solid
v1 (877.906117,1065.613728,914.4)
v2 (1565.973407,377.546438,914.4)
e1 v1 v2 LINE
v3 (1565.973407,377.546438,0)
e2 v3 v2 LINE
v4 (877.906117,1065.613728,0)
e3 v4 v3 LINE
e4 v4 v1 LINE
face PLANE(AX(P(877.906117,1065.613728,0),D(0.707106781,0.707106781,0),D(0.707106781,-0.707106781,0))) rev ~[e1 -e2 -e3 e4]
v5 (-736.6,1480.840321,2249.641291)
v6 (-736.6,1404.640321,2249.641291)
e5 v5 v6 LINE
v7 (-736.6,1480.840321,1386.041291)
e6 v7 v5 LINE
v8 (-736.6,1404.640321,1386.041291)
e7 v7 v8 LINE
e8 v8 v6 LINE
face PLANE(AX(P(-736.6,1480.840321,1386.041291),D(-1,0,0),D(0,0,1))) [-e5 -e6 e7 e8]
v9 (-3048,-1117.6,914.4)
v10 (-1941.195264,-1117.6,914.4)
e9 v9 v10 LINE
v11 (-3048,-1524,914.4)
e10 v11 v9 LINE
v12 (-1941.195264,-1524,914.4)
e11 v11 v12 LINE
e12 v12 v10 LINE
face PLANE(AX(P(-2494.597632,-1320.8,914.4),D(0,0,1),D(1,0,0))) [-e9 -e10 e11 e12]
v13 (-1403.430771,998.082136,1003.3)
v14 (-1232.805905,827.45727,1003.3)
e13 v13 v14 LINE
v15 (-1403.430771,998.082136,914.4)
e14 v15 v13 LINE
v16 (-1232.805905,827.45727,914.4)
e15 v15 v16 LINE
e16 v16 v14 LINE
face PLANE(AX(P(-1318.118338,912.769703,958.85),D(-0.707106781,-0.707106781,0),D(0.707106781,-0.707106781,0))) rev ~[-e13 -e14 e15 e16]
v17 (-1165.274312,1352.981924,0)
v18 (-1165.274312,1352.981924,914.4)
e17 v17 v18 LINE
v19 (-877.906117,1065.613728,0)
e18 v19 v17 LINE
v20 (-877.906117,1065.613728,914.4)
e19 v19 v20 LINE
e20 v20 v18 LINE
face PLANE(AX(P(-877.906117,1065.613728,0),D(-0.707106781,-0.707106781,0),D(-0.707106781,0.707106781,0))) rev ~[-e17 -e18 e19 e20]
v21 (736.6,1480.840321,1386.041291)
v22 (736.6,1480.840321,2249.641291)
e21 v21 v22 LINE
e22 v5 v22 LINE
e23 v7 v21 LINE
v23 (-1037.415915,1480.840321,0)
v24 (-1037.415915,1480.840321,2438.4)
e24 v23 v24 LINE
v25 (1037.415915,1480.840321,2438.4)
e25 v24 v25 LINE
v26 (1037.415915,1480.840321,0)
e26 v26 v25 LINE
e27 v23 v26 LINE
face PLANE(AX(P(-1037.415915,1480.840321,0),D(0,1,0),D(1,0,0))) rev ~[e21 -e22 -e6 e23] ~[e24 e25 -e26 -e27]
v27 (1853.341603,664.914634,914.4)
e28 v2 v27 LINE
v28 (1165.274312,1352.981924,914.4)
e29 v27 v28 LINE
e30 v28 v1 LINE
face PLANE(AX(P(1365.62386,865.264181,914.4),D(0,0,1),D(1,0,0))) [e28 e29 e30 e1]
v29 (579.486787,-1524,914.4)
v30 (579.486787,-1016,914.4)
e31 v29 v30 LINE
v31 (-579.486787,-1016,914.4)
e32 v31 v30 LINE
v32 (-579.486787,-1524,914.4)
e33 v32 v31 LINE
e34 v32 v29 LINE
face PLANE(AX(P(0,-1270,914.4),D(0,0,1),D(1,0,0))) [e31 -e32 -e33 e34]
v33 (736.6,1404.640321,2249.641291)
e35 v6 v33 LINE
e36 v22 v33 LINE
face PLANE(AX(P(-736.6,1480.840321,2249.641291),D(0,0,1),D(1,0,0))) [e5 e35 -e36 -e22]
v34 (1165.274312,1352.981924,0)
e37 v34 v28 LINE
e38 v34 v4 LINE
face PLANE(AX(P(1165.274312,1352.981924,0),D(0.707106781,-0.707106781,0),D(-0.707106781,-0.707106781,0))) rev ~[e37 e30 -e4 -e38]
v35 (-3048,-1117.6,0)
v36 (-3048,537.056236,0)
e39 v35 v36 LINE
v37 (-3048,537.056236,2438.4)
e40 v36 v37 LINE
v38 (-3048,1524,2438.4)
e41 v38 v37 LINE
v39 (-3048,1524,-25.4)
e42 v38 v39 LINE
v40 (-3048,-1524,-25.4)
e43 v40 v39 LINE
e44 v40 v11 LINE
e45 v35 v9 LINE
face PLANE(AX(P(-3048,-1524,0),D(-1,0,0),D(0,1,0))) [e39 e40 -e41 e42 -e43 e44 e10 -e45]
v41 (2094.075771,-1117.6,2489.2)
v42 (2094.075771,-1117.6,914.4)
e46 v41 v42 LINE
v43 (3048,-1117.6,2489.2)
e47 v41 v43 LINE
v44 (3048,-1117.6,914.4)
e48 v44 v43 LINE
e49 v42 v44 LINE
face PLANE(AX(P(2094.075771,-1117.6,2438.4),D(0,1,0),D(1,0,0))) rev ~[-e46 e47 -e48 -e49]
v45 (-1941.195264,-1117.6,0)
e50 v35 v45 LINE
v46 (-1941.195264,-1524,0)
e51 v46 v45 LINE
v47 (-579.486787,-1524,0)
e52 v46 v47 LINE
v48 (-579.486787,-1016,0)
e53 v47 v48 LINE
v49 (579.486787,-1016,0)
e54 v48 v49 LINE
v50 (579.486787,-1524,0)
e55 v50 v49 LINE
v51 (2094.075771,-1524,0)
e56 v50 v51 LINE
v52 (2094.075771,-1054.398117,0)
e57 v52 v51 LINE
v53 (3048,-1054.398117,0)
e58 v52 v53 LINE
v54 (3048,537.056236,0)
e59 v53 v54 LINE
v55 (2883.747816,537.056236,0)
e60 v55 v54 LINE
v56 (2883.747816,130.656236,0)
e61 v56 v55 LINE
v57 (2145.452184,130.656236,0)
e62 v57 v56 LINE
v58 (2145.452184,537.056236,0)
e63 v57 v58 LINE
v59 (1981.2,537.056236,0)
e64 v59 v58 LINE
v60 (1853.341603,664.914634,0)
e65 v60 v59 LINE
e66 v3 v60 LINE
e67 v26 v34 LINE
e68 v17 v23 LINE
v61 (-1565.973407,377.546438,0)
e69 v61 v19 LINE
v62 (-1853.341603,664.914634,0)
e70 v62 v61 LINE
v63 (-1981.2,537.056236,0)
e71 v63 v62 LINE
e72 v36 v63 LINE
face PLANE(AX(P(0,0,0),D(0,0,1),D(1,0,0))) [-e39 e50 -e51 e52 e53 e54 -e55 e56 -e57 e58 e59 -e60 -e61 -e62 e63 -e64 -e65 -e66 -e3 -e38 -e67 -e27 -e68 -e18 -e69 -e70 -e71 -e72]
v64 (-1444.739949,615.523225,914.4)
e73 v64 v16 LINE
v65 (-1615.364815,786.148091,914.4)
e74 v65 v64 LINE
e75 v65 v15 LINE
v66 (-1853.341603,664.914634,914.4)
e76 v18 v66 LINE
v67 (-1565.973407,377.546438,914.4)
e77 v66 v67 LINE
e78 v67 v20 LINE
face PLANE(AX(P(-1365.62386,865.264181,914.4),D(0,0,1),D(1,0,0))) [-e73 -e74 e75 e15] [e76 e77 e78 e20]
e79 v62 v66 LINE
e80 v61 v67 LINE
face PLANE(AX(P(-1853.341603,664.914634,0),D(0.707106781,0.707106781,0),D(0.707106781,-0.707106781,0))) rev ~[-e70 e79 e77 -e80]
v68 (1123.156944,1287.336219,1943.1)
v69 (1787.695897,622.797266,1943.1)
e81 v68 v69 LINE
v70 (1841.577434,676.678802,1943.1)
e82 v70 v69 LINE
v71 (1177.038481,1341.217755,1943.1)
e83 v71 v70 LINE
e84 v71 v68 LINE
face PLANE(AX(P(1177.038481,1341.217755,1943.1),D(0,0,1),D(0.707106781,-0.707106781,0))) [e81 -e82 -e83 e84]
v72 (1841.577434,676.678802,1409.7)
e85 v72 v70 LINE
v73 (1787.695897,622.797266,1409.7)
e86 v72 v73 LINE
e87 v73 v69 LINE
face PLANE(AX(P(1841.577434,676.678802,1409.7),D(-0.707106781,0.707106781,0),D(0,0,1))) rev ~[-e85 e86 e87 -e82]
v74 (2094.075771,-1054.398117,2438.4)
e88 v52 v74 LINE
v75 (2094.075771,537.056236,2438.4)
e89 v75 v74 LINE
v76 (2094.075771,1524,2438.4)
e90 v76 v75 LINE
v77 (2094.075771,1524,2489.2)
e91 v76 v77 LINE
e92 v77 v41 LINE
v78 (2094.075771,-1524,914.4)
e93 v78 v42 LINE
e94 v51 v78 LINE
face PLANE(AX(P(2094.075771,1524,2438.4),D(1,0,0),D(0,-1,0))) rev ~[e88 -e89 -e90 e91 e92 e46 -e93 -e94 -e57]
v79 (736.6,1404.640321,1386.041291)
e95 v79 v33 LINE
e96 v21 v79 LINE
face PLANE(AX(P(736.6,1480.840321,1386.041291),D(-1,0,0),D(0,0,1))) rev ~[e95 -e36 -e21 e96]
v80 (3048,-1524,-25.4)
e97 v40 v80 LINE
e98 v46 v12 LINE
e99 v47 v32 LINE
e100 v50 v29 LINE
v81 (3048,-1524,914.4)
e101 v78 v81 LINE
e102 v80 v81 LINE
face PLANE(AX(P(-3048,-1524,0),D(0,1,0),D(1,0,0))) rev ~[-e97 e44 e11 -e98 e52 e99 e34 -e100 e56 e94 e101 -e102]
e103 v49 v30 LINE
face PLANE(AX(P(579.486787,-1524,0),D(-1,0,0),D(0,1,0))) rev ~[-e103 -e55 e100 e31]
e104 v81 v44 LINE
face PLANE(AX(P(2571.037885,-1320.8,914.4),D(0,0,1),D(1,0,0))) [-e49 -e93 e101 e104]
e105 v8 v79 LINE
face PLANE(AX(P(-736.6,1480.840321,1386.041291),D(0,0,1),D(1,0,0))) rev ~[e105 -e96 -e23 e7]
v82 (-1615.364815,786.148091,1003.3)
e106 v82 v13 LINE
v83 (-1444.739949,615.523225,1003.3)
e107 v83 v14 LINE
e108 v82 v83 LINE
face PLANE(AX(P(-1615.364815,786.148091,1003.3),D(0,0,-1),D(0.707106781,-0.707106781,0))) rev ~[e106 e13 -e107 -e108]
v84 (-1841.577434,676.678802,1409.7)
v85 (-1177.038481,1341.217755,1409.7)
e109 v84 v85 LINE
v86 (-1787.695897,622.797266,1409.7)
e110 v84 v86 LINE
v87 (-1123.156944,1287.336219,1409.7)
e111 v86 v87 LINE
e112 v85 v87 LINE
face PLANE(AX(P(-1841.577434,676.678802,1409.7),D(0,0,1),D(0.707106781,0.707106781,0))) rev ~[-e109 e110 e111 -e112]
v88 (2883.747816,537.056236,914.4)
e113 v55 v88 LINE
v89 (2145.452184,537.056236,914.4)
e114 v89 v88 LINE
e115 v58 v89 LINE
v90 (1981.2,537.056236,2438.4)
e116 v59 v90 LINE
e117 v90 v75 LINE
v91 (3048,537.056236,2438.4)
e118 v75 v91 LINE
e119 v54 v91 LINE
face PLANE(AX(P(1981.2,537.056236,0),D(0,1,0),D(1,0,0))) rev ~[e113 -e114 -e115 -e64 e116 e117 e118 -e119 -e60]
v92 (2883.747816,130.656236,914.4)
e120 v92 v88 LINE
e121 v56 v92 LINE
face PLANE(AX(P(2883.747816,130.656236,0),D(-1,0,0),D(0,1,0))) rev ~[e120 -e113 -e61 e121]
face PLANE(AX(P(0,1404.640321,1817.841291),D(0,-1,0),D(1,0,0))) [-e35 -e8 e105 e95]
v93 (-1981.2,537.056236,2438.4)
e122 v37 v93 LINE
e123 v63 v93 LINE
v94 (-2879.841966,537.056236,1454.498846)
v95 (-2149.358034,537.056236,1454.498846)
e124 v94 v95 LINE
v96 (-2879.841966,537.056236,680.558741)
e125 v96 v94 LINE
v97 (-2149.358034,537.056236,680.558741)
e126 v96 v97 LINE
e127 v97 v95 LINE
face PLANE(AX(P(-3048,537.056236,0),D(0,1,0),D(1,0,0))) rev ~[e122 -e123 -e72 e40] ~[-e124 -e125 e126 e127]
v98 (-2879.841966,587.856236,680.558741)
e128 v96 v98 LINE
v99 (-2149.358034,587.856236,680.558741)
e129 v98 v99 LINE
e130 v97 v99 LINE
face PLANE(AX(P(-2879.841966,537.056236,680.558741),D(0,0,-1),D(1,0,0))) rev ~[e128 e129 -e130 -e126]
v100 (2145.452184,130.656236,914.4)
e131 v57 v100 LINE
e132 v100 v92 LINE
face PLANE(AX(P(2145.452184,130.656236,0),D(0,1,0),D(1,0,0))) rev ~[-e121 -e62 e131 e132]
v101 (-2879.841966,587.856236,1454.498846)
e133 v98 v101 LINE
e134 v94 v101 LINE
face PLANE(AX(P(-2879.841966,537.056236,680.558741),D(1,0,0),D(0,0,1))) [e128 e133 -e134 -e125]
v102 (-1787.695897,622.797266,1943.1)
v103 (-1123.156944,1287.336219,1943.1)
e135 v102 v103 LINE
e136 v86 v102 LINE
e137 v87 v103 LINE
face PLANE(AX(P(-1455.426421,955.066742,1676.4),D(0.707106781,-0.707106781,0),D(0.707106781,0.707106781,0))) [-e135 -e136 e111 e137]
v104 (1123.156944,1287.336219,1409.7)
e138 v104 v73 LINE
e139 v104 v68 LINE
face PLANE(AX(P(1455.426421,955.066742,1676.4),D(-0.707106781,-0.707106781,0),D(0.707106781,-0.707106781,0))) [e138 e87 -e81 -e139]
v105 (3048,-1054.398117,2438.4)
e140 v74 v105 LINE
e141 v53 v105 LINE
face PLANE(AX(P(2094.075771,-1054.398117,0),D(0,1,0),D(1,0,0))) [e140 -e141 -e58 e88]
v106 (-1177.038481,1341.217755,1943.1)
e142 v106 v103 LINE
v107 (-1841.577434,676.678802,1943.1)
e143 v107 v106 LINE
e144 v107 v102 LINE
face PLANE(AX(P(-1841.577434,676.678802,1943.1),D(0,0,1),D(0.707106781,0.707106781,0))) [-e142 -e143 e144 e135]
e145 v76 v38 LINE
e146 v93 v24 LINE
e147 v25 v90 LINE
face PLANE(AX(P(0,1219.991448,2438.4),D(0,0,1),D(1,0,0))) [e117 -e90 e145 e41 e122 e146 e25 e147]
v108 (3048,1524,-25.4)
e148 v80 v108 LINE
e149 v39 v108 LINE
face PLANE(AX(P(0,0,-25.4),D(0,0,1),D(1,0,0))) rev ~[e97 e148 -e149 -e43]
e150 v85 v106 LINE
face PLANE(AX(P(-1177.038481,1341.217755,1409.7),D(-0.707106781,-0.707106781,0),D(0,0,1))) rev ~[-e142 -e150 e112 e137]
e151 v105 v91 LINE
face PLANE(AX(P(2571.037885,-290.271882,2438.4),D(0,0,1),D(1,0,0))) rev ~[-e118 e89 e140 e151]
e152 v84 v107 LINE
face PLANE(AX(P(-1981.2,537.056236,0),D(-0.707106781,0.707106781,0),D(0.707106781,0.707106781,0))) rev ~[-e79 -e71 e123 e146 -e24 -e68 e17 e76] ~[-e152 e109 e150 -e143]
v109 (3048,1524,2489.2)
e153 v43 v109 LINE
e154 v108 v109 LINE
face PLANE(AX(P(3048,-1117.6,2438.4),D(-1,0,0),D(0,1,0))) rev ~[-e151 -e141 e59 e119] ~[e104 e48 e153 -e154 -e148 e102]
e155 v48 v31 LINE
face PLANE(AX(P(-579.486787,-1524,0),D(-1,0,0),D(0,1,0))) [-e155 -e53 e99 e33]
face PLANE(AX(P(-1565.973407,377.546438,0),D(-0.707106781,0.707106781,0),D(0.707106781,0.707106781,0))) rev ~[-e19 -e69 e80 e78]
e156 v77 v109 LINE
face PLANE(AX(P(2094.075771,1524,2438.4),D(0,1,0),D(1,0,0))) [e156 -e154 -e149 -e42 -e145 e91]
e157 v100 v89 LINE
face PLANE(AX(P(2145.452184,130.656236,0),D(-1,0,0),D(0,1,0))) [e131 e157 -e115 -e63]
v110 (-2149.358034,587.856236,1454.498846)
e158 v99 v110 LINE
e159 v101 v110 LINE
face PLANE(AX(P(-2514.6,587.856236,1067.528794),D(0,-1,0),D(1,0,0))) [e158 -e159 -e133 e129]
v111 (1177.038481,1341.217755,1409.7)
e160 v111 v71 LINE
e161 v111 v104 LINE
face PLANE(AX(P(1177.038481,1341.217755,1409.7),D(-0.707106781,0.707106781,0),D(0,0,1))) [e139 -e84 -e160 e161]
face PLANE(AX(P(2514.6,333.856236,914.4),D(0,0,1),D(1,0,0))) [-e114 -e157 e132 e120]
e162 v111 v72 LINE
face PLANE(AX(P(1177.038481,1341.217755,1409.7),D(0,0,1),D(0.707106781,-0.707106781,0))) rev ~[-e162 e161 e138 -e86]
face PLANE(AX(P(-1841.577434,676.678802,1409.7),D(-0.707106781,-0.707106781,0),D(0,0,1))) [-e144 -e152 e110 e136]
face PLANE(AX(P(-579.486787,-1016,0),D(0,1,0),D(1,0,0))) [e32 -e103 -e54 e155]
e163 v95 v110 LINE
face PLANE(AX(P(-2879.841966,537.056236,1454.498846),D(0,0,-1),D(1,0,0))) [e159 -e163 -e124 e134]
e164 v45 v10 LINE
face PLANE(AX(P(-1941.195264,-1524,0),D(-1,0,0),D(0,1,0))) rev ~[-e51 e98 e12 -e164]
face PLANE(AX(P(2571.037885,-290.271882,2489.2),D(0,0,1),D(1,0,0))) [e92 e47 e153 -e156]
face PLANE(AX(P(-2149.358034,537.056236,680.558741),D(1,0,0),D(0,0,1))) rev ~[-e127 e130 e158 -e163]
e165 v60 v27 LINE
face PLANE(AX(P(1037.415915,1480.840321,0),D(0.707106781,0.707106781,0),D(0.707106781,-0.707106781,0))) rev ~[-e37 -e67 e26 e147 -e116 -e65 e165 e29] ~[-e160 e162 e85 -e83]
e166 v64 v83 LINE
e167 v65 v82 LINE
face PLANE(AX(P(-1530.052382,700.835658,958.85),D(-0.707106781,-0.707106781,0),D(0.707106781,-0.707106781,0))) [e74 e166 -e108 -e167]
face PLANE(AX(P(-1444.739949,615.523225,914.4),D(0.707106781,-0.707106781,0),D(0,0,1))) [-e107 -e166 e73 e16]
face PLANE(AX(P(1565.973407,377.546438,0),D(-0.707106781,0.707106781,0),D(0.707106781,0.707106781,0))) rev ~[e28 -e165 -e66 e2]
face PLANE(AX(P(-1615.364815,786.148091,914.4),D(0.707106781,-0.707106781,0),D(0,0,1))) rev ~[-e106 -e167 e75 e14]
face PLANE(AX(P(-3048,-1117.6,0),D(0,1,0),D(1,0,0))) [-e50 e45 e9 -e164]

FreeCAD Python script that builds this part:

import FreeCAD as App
import Part
import Sketcher
Q = App.Units.Quantity

doc = App.newDocument("Part")
params = doc.addObject("Spreadsheet::Sheet", "Params")
for row, (alias, value) in enumerate([
    ("sketch1_width", "240 in"),
    ("sketch1_width2", "42 in"),
    ("pad1_length", "96 in"),
    ("sketch2_height", "16 in"),
    ("sketch2_length", "16 in"),
    ("pad2_length", "36 in"),
    ("pad3_length", "96 in"),
    ("sketch4_height", "16 in"),
    ("pad4_length", "36 in"),
    ("sketch5_height", "20 in"),
    ("pad5_length", "36 in"),
    ("sketch6_width", "240 in"),
    ("sketch6_height", "120 in"),
    ("pad6_length", "1 in"),
    ("sketch7_height", "104 in"),
    ("pad7_length", "2 in"),
    ("sketch8_width", "58 in"),
    ("sketch8_height", "34 in"),
    ("pad8_length", "3 in"),
    ("sketch9_width", "37 in"),
    ("sketch9_height", "21 in"),
    ("pad9_length", "3 in"),
    ("sketch10_width", "37 in"),
    ("sketch10_height", "21 in"),
    ("pad10_length", "3 in"),
    ("pocket1_length", "2 in"),
    ("sketch12_width", "9.5 in"),
    ("sketch12_height", "3.5 in"),
    ("pad11_length", "11.8 in"),
    ("sketch13_height", "16 in"),
    ("pad12_length", "36 in"),
], start=1):
    params.set(f"A{row}", alias)
    params.set(f"B{row}", "=" + value)
    params.setAlias(f"B{row}", alias)

body = doc.addObject("PartDesign::Body", "Body")

# Sketch on XY plane
sketch1 = body.newObject("Sketcher::SketchObject", "Sketch")
sketch1.AttachmentSupport = (doc.getObject("XY_Plane"), [""])
sketch1.MapMode = "FlatFace"
sketch1.addGeometry(Part.LineSegment(App.Vector(3048, 537, 0), App.Vector(3048, 1524, 0)), False)
sketch1.addGeometry(Part.LineSegment(App.Vector(3048, 1524, 0), App.Vector(-3048, 1524, 0)), False)
sketch1.addGeometry(Part.LineSegment(App.Vector(-3048, 1524, 0), App.Vector(-3048, 537, 0)), False)
sketch1.addGeometry(Part.LineSegment(App.Vector(-3048, 537, 0), App.Vector(-1981, 537, 0)), False)
sketch1.addGeometry(Part.LineSegment(App.Vector(-1981, 537, 0), App.Vector(-1037, 1481, 0)), False)
sketch1.addGeometry(Part.LineSegment(App.Vector(-1037, 1481, 0), App.Vector(1037, 1481, 0)), False)
sketch1.addGeometry(Part.LineSegment(App.Vector(1037, 1481, 0), App.Vector(1981, 537, 0)), False)
sketch1.addGeometry(Part.LineSegment(App.Vector(1981, 537, 0), App.Vector(3048, 537, 0)), False)
sketch1.addConstraint(Sketcher.Constraint("Coincident", 0, 2, 1, 1))
sketch1.addConstraint(Sketcher.Constraint("Coincident", 1, 2, 2, 1))
sketch1.addConstraint(Sketcher.Constraint("Coincident", 2, 2, 3, 1))
sketch1.addConstraint(Sketcher.Constraint("Coincident", 3, 2, 4, 1))
sketch1.addConstraint(Sketcher.Constraint("Coincident", 4, 2, 5, 1))
sketch1.addConstraint(Sketcher.Constraint("Coincident", 5, 2, 6, 1))
sketch1.addConstraint(Sketcher.Constraint("Coincident", 6, 2, 7, 1))
sketch1.addConstraint(Sketcher.Constraint("Coincident", 7, 2, 0, 1))
sketch1.addConstraint(Sketcher.Constraint("Vertical", 0))
sketch1.addConstraint(Sketcher.Constraint("Horizontal", 1))
sketch1.addConstraint(Sketcher.Constraint("Vertical", 2))
sketch1.addConstraint(Sketcher.Constraint("Horizontal", 3))
sketch1.addConstraint(Sketcher.Constraint("Horizontal", 5))
sketch1.addConstraint(Sketcher.Constraint("Horizontal", 7))
sketch1.addConstraint(Sketcher.Constraint("Symmetric", 3, 2, 6, 2, -2))
sketch1.addConstraint(Sketcher.Constraint("Perpendicular", 4, 6))
sketch1.addConstraint(Sketcher.Constraint("Equal", 3, 7))
sketch1.addConstraint(Sketcher.Constraint("Equal", 4, 6))
sketch1.addConstraint(Sketcher.Constraint("DistanceX", 1, 2, 1, 1, Q("240 in")))
sketch1.addConstraint(Sketcher.Constraint("DistanceX", 3, 1, 3, 2, Q("42 in")))
sketch1.addConstraint(Sketcher.Constraint("DistanceY", -1, 1, 0, 2, Q("60 in")))
sketch1.addConstraint(Sketcher.Constraint("DistanceY", -1, 1, 4, 2, Q("58.3008001 in")))
sketch1.addConstraint(Sketcher.Constraint("DistanceX", 5, 1, 5, 2, Q("2074.83183 mm")))
sketch1.setExpression("Constraints[18]", "Params.sketch1_width")
sketch1.setExpression("Constraints[19]", "Params.sketch1_width2")
pad1 = body.newObject("PartDesign::Pad", "Pad")
pad1.Profile = sketch1
pad1.setExpression("Length", "Params.pad1_length")

# Sketch on XY plane
sketch2 = body.newObject("Sketcher::SketchObject", "Sketch001")
sketch2.AttachmentSupport = (doc.getObject("XY_Plane"), [""])
sketch2.MapMode = "FlatFace"
sketch2.addGeometry(Part.LineSegment(App.Vector(-1165, 1353, 0), App.Vector(-1853, 665, 0)), False)
sketch2.addGeometry(Part.LineSegment(App.Vector(-1853, 665, 0), App.Vector(-1566, 378, 0)), False)
sketch2.addGeometry(Part.LineSegment(App.Vector(-1566, 378, 0), App.Vector(-878, 1066, 0)), False)
sketch2.addGeometry(Part.LineSegment(App.Vector(-878, 1066, 0), App.Vector(-1165, 1353, 0)), False)
sketch2.addGeometry(Part.LineSegment(App.Vector(1566, 378, 0), App.Vector(1853, 665, 0)), False)
sketch2.addGeometry(Part.LineSegment(App.Vector(1853, 665, 0), App.Vector(1165, 1353, 0)), False)
sketch2.addGeometry(Part.LineSegment(App.Vector(1165, 1353, 0), App.Vector(878, 1066, 0)), False)
sketch2.addGeometry(Part.LineSegment(App.Vector(878, 1066, 0), App.Vector(1566, 378, 0)), False)
sketch2.addGeometry(Part.LineSegment(App.Vector(2145, 537, 0), App.Vector(2145, 131, 0)), False)
sketch2.addGeometry(Part.LineSegment(App.Vector(2145, 131, 0), App.Vector(2884, 131, 0)), False)
sketch2.addGeometry(Part.LineSegment(App.Vector(2884, 131, 0), App.Vector(2884, 537, 0)), False)
sketch2.addGeometry(Part.LineSegment(App.Vector(2884, 537, 0), App.Vector(2145, 537, 0)), False)
sketch2.addConstraint(Sketcher.Constraint("Coincident", 0, 2, 1, 1))
sketch2.addConstraint(Sketcher.Constraint("Coincident", 1, 2, 2, 1))
sketch2.addConstraint(Sketcher.Constraint("Coincident", 2, 2, 3, 1))
sketch2.addConstraint(Sketcher.Constraint("Coincident", 3, 2, 0, 1))
sketch2.addConstraint(Sketcher.Constraint("Coincident", 4, 2, 5, 1))
sketch2.addConstraint(Sketcher.Constraint("Coincident", 5, 2, 6, 1))
sketch2.addConstraint(Sketcher.Constraint("Coincident", 6, 2, 7, 1))
sketch2.addConstraint(Sketcher.Constraint("Coincident", 7, 2, 4, 1))
sketch2.addConstraint(Sketcher.Constraint("Coincident", 8, 2, 9, 1))
sketch2.addConstraint(Sketcher.Constraint("Coincident", 9, 2, 10, 1))
sketch2.addConstraint(Sketcher.Constraint("Coincident", 10, 2, 11, 1))
sketch2.addConstraint(Sketcher.Constraint("Coincident", 11, 2, 8, 1))
sketch2.addConstraint(Sketcher.Constraint("Vertical", 8))
sketch2.addConstraint(Sketcher.Constraint("Horizontal", 9))
sketch2.addConstraint(Sketcher.Constraint("Vertical", 10))
sketch2.addConstraint(Sketcher.Constraint("Horizontal", 11))
sketch2.addConstraint(Sketcher.Constraint("Symmetric", 0, 2, 4, 2, -2))
sketch2.addConstraint(Sketcher.Constraint("Symmetric", 3, 2, 5, 2, -2))
sketch2.addConstraint(Sketcher.Constraint("Symmetric", 2, 2, 6, 2, -2))
sketch2.addConstraint(Sketcher.Constraint("Symmetric", 1, 2, 7, 2, -2))
sketch2.addConstraint(Sketcher.Constraint("Perpendicular", 0, 1))
sketch2.addConstraint(Sketcher.Constraint("Perpendicular", 1, 2))
sketch2.addConstraint(Sketcher.Constraint("Perpendicular", 2, 3))
sketch2.addConstraint(Sketcher.Constraint("Perpendicular", 3, 4))
sketch2.addConstraint(Sketcher.Constraint("DistanceY", 8, 2, 8, 1, Q("16 in")))
sketch2.addConstraint(Sketcher.Constraint("Distance", 1, Q("16 in")))
sketch2.addConstraint(Sketcher.Constraint("DistanceY", 8, 2, 7, 2, Q("246.890202 mm")))
sketch2.addConstraint(Sketcher.Constraint("DistanceX", 2, 2, 8, 2, Q("3023.358301 mm")))
sketch2.addConstraint(Sketcher.Constraint("DistanceX", 6, 2, 9, 2, Q("2005.841699 mm")))
sketch2.addConstraint(Sketcher.Constraint("DistanceX", 9, 1, 9, 2, Q("738.295632 mm")))
sketch2.addConstraint(Sketcher.Constraint("DistanceX", 1, 2, 2, 2, Q("688.06729 mm")))
sketch2.addConstraint(Sketcher.Constraint("DistanceY", -1, 1, 0, 2, Q("664.914634 mm")))
sketch2.setExpression("Constraints[24]", "Params.sketch2_height")
sketch2.setExpression("Constraints[25]", "Params.sketch2_length")
pad2 = body.newObject("PartDesign::Pad", "Pad001")
pad2.Profile = sketch2
pad2.setExpression("Length", "Params.pad2_length")
body2 = doc.addObject("PartDesign::Body", "Body001")

# Sketch on XY plane
sketch3 = body2.newObject("Sketcher::SketchObject", "Sketch002")
sketch3.AttachmentSupport = (doc.getObject("XY_Plane001"), [""])
sketch3.MapMode = "FlatFace"
sketch3.addGeometry(Part.LineSegment(App.Vector(2094, -1054, 0), App.Vector(2094, -1118, 0)), False)
sketch3.addGeometry(Part.LineSegment(App.Vector(2094, -1118, 0), App.Vector(3048, -1118, 0)), False)
sketch3.addGeometry(Part.LineSegment(App.Vector(3048, -1118, 0), App.Vector(3048, -1054, 0)), False)
sketch3.addGeometry(Part.LineSegment(App.Vector(3048, -1054, 0), App.Vector(2094, -1054, 0)), False)
sketch3.addConstraint(Sketcher.Constraint("Coincident", 0, 2, 1, 1))
sketch3.addConstraint(Sketcher.Constraint("Coincident", 1, 2, 2, 1))
sketch3.addConstraint(Sketcher.Constraint("Coincident", 2, 2, 3, 1))
sketch3.addConstraint(Sketcher.Constraint("Coincident", 3, 2, 0, 1))
sketch3.addConstraint(Sketcher.Constraint("Vertical", 0))
sketch3.addConstraint(Sketcher.Constraint("Horizontal", 1))
sketch3.addConstraint(Sketcher.Constraint("Vertical", 2))
sketch3.addConstraint(Sketcher.Constraint("Horizontal", 3))
sketch3.addConstraint(Sketcher.Constraint("DistanceY", 0, 2, -1, 1, Q("44 in")))
sketch3.addConstraint(Sketcher.Constraint("DistanceX", -1, 1, 1, 2, Q("120 in")))
sketch3.addConstraint(Sketcher.Constraint("DistanceX", 1, 1, 1, 2, Q("953.924229 mm")))
sketch3.addConstraint(Sketcher.Constraint("DistanceY", 0, 2, 0, 1, Q("63.201883 mm")))
pad3 = body2.newObject("PartDesign::Pad", "Pad002")
pad3.Profile = sketch3
pad3.setExpression("Length", "Params.pad3_length")

# Sketch on XY plane
sketch4 = body2.newObject("Sketcher::SketchObject", "Sketch003")
sketch4.AttachmentSupport = (doc.getObject("XY_Plane001"), [""])
sketch4.MapMode = "FlatFace"
sketch4.addGeometry(Part.LineSegment(App.Vector(2094, -1118, 0), App.Vector(2094, -1524, 0)), False)
sketch4.addGeometry(Part.LineSegment(App.Vector(2094, -1524, 0), App.Vector(3048, -1524, 0)), False)
sketch4.addGeometry(Part.LineSegment(App.Vector(3048, -1524, 0), App.Vector(3048, -1118, 0)), False)
sketch4.addGeometry(Part.LineSegment(App.Vector(3048, -1118, 0), App.Vector(2094, -1118, 0)), False)
sketch4.addConstraint(Sketcher.Constraint("Coincident", 0, 2, 1, 1))
sketch4.addConstraint(Sketcher.Constraint("Coincident", 1, 2, 2, 1))
sketch4.addConstraint(Sketcher.Constraint("Coincident", 2, 2, 3, 1))
sketch4.addConstraint(Sketcher.Constraint("Coincident", 3, 2, 0, 1))
sketch4.addConstraint(Sketcher.Constraint("Vertical", 0))
sketch4.addConstraint(Sketcher.Constraint("Horizontal", 1))
sketch4.addConstraint(Sketcher.Constraint("Vertical", 2))
sketch4.addConstraint(Sketcher.Constraint("Horizontal", 3))
sketch4.addConstraint(Sketcher.Constraint("DistanceY", 0, 2, 0, 1, Q("16 in")))
sketch4.addConstraint(Sketcher.Constraint("DistanceY", 0, 2, -1, 1, Q("60 in")))
sketch4.addConstraint(Sketcher.Constraint("DistanceX", -1, 1, 1, 2, Q("120 in")))
sketch4.addConstraint(Sketcher.Constraint("DistanceX", 1, 1, 1, 2, Q("953.924229 mm")))
sketch4.setExpression("Constraints[8]", "Params.sketch4_height")
pad4 = body2.newObject("PartDesign::Pad", "Pad003")
pad4.Profile = sketch4
pad4.setExpression("Length", "Params.pad4_length")
body3 = doc.addObject("PartDesign::Body", "Body002")

# Sketch on XY plane
sketch5 = body3.newObject("Sketcher::SketchObject", "Sketch004")
sketch5.AttachmentSupport = (doc.getObject("XY_Plane002"), [""])
sketch5.MapMode = "FlatFace"
sketch5.addGeometry(Part.LineSegment(App.Vector(-579, -1016, 0), App.Vector(-579, -1524, 0)), False)
sketch5.addGeometry(Part.LineSegment(App.Vector(-579, -1524, 0), App.Vector(579, -1524, 0)), False)
sketch5.addGeometry(Part.LineSegment(App.Vector(579, -1524, 0), App.Vector(579, -1016, 0)), False)
sketch5.addGeometry(Part.LineSegment(App.Vector(579, -1016, 0), App.Vector(-579, -1016, 0)), False)
sketch5.addConstraint(Sketcher.Constraint("Coincident", 0, 2, 1, 1))
sketch5.addConstraint(Sketcher.Constraint("Coincident", 1, 2, 2, 1))
sketch5.addConstraint(Sketcher.Constraint("Coincident", 2, 2, 3, 1))
sketch5.addConstraint(Sketcher.Constraint("Coincident", 3, 2, 0, 1))
sketch5.addConstraint(Sketcher.Constraint("Vertical", 0))
sketch5.addConstraint(Sketcher.Constraint("Horizontal", 1))
sketch5.addConstraint(Sketcher.Constraint("Vertical", 2))
sketch5.addConstraint(Sketcher.Constraint("Horizontal", 3))
sketch5.addConstraint(Sketcher.Constraint("DistanceY", 0, 2, 0, 1, Q("20 in")))
sketch5.addConstraint(Sketcher.Constraint("DistanceY", 0, 2, -1, 1, Q("60 in")))
sketch5.addConstraint(Sketcher.Constraint("DistanceX", 1, 1, 1, 2, Q("1158.973575 mm")))
sketch5.addConstraint(Sketcher.Constraint("DistanceX", 0, 2, -1, 1, Q("579.486787 mm")))
sketch5.setExpression("Constraints[8]", "Params.sketch5_height")
pad5 = body3.newObject("PartDesign::Pad", "Pad004")
pad5.Profile = sketch5
pad5.setExpression("Length", "Params.pad5_length")
body.AllowCompound = True
doc.recompute()

boolean = body.newObject("PartDesign::Boolean", "Boolean")
boolean.Type = "Fuse"
boolean.addObjects([body2])
doc.recompute()

boolean2 = body.newObject("PartDesign::Boolean", "Boolean001")
boolean2.Type = "Fuse"
boolean2.addObjects([body3])

# Sketch on XY plane
sketch6 = body.newObject("Sketcher::SketchObject", "Sketch005")
sketch6.AttachmentSupport = (doc.getObject("XY_Plane"), [""])
sketch6.MapMode = "FlatFace"
sketch6.addGeometry(Part.LineSegment(App.Vector(-3048, 1524, 0), App.Vector(-3048, -1524, 0)), False)
sketch6.addGeometry(Part.LineSegment(App.Vector(-3048, -1524, 0), App.Vector(3048, -1524, 0)), False)
sketch6.addGeometry(Part.LineSegment(App.Vector(3048, -1524, 0), App.Vector(3048, 1524, 0)), False)
sketch6.addGeometry(Part.LineSegment(App.Vector(3048, 1524, 0), App.Vector(-3048, 1524, 0)), False)
sketch6.addConstraint(Sketcher.Constraint("Coincident", 0, 2, 1, 1))
sketch6.addConstraint(Sketcher.Constraint("Coincident", 1, 2, 2, 1))
sketch6.addConstraint(Sketcher.Constraint("Coincident", 2, 2, 3, 1))
sketch6.addConstraint(Sketcher.Constraint("Coincident", 3, 2, 0, 1))
sketch6.addConstraint(Sketcher.Constraint("Vertical", 0))
sketch6.addConstraint(Sketcher.Constraint("Horizontal", 1))
sketch6.addConstraint(Sketcher.Constraint("Vertical", 2))
sketch6.addConstraint(Sketcher.Constraint("Horizontal", 3))
sketch6.addConstraint(Sketcher.Constraint("Symmetric", 0, 2, 2, 2, -1, 1))
sketch6.addConstraint(Sketcher.Constraint("DistanceX", 1, 1, 1, 2, Q("240 in")))
sketch6.addConstraint(Sketcher.Constraint("DistanceY", 0, 2, 0, 1, Q("120 in")))
sketch6.setExpression("Constraints[9]", "Params.sketch6_width")
sketch6.setExpression("Constraints[10]", "Params.sketch6_height")
pad6 = body.newObject("PartDesign::Pad", "Pad005")
pad6.Profile = sketch6
pad6.setExpression("Length", "Params.pad6_length")
pad6.Reversed = True

# Sketch on XY plane
sketch7 = body.newObject("Sketcher::SketchObject", "Sketch006")
sketch7.AttachmentSupport = (doc.getObject("XY_Plane"), [""])
sketch7.MapMode = "FlatFace"
sketch7.AttachmentOffset = App.Placement(App.Vector(0, 0, 96 * 25.4), App.Rotation())
sketch7.addGeometry(Part.LineSegment(App.Vector(2094, -1118, 0), App.Vector(3048, -1118, 0)), False)
sketch7.addGeometry(Part.LineSegment(App.Vector(3048, -1118, 0), App.Vector(3048, 1524, 0)), False)
sketch7.addGeometry(Part.LineSegment(App.Vector(3048, 1524, 0), App.Vector(2094, 1524, 0)), False)
sketch7.addGeometry(Part.LineSegment(App.Vector(2094, 1524, 0), App.Vector(2094, -1118, 0)), False)
sketch7.addConstraint(Sketcher.Constraint("Coincident", 0, 2, 1, 1))
sketch7.addConstraint(Sketcher.Constraint("Coincident", 1, 2, 2, 1))
sketch7.addConstraint(Sketcher.Constraint("Coincident", 2, 2, 3, 1))
sketch7.addConstraint(Sketcher.Constraint("Coincident", 3, 2, 0, 1))
sketch7.addConstraint(Sketcher.Constraint("Horizontal", 0))
sketch7.addConstraint(Sketcher.Constraint("Vertical", 1))
sketch7.addConstraint(Sketcher.Constraint("Horizontal", 2))
sketch7.addConstraint(Sketcher.Constraint("Vertical", 3))
sketch7.addConstraint(Sketcher.Constraint("DistanceY", 1, 1, 1, 2, Q("104 in")))
sketch7.addConstraint(Sketcher.Constraint("DistanceX", -1, 1, 0, 2, Q("120 in")))
sketch7.addConstraint(Sketcher.Constraint("DistanceY", 0, 2, -1, 1, Q("44 in")))
sketch7.addConstraint(Sketcher.Constraint("DistanceX", 0, 1, 0, 2, Q("953.924229 mm")))
sketch7.setExpression("Constraints[8]", "Params.sketch7_height")
pad7 = body.newObject("PartDesign::Pad", "Pad006")
pad7.Profile = sketch7
pad7.setExpression("Length", "Params.pad7_length")

# Sketch on XZ plane
sketch8 = body.newObject("Sketcher::SketchObject", "Sketch007")
sketch8.AttachmentSupport = (doc.getObject("XZ_Plane"), [""])
sketch8.MapMode = "FlatFace"
sketch8.AttachmentOffset = App.Placement(App.Vector(0, 0, -58.3008001 * 25.4), App.Rotation())
sketch8.addGeometry(Part.LineSegment(App.Vector(-737, 2250, 0), App.Vector(-737, 1386, 0)), False)
sketch8.addGeometry(Part.LineSegment(App.Vector(-737, 1386, 0), App.Vector(737, 1386, 0)), False)
sketch8.addGeometry(Part.LineSegment(App.Vector(737, 1386, 0), App.Vector(737, 2250, 0)), False)
sketch8.addGeometry(Part.LineSegment(App.Vector(737, 2250, 0), App.Vector(-737, 2250, 0)), False)
sketch8.addConstraint(Sketcher.Constraint("Coincident", 0, 2, 1, 1))
sketch8.addConstraint(Sketcher.Constraint("Coincident", 1, 2, 2, 1))
sketch8.addConstraint(Sketcher.Constraint("Coincident", 2, 2, 3, 1))
sketch8.addConstraint(Sketcher.Constraint("Coincident", 3, 2, 0, 1))
sketch8.addConstraint(Sketcher.Constraint("Vertical", 0))
sketch8.addConstraint(Sketcher.Constraint("Horizontal", 1))
sketch8.addConstraint(Sketcher.Constraint("Vertical", 2))
sketch8.addConstraint(Sketcher.Constraint("Horizontal", 3))
sketch8.addConstraint(Sketcher.Constraint("DistanceX", 1, 1, 1, 2, Q("58 in")))
sketch8.addConstraint(Sketcher.Constraint("DistanceY", 0, 2, 0, 1, Q("34 in")))
sketch8.addConstraint(Sketcher.Constraint("DistanceX", 0, 2, -1, 1, Q("29 in")))
sketch8.addConstraint(Sketcher.Constraint("DistanceY", -1, 1, 0, 2, Q("1386.041291 mm")))
sketch8.setExpression("Constraints[8]", "Params.sketch8_width")
sketch8.setExpression("Constraints[9]", "Params.sketch8_height")
pad8 = body.newObject("PartDesign::Pad", "Pad007")
pad8.Profile = sketch8
pad8.setExpression("Length", "Params.pad8_length")

# Sketch on an angled plane
sketch9 = body.newObject("Sketcher::SketchObject", "Sketch008")
sketch9.Placement = App.Placement(App.Vector(-1259.128118, 1259.128118, 0), App.Rotation(App.Vector(0.707106781, 0.707106781, 0), App.Vector(0, 0, 0.999999999), App.Vector(0.707106781, -0.707106781, 0), "ZXY"))
sketch9.addGeometry(Part.LineSegment(App.Vector(-824, 1943, 0), App.Vector(-824, 1410, 0)), False)
sketch9.addGeometry(Part.LineSegment(App.Vector(-824, 1410, 0), App.Vector(116, 1410, 0)), False)
sketch9.addGeometry(Part.LineSegment(App.Vector(116, 1410, 0), App.Vector(116, 1943, 0)), False)
sketch9.addGeometry(Part.LineSegment(App.Vector(116, 1943, 0), App.Vector(-824, 1943, 0)), False)
sketch9.addConstraint(Sketcher.Constraint("Coincident", 0, 2, 1, 1))
sketch9.addConstraint(Sketcher.Constraint("Coincident", 1, 2, 2, 1))
sketch9.addConstraint(Sketcher.Constraint("Coincident", 2, 2, 3, 1))
sketch9.addConstraint(Sketcher.Constraint("Coincident", 3, 2, 0, 1))
sketch9.addConstraint(Sketcher.Constraint("Vertical", 0))
sketch9.addConstraint(Sketcher.Constraint("Horizontal", 1))
sketch9.addConstraint(Sketcher.Constraint("Vertical", 2))
sketch9.addConstraint(Sketcher.Constraint("Horizontal", 3))
sketch9.addConstraint(Sketcher.Constraint("DistanceX", 1, 1, 1, 2, Q("37 in")))
sketch9.addConstraint(Sketcher.Constraint("DistanceY", 0, 2, 0, 1, Q("21 in")))
sketch9.addConstraint(Sketcher.Constraint("DistanceY", -1, 1, 0, 2, Q("55.4999999 in")))
sketch9.addConstraint(Sketcher.Constraint("DistanceX", 0, 2, -1, 1, Q("823.707721 mm")))
sketch9.setExpression("Constraints[8]", "Params.sketch9_width")
sketch9.setExpression("Constraints[9]", "Params.sketch9_height")
pad9 = body.newObject("PartDesign::Pad", "Pad008")
pad9.Profile = sketch9
pad9.setExpression("Length", "Params.pad9_length")

# Sketch on an angled plane
sketch10 = body.newObject("Sketcher::SketchObject", "Sketch009")
sketch10.Placement = App.Placement(App.Vector(1259.128118, 1259.128118, 0), App.Rotation(App.Vector(0.707106781, -0.707106781, 0), App.Vector(0, 0, 0.999999999), App.Vector(-0.707106781, -0.707106781, 0), "ZXY"))
sketch10.addGeometry(Part.LineSegment(App.Vector(-116, 1943, 0), App.Vector(-116, 1410, 0)), False)
sketch10.addGeometry(Part.LineSegment(App.Vector(-116, 1410, 0), App.Vector(824, 1410, 0)), False)
sketch10.addGeometry(Part.LineSegment(App.Vector(824, 1410, 0), App.Vector(824, 1943, 0)), False)
sketch10.addGeometry(Part.LineSegment(App.Vector(824, 1943, 0), App.Vector(-116, 1943, 0)), False)
sketch10.addConstraint(Sketcher.Constraint("Coincident", 0, 2, 1, 1))
sketch10.addConstraint(Sketcher.Constraint("Coincident", 1, 2, 2, 1))
sketch10.addConstraint(Sketcher.Constraint("Coincident", 2, 2, 3, 1))
sketch10.addConstraint(Sketcher.Constraint("Coincident", 3, 2, 0, 1))
sketch10.addConstraint(Sketcher.Constraint("Vertical", 0))
sketch10.addConstraint(Sketcher.Constraint("Horizontal", 1))
sketch10.addConstraint(Sketcher.Constraint("Vertical", 2))
sketch10.addConstraint(Sketcher.Constraint("Horizontal", 3))
sketch10.addConstraint(Sketcher.Constraint("DistanceX", 1, 1, 1, 2, Q("37 in")))
sketch10.addConstraint(Sketcher.Constraint("DistanceY", 0, 2, 0, 1, Q("21 in")))
sketch10.addConstraint(Sketcher.Constraint("DistanceY", -1, 1, 0, 2, Q("55.4999999 in")))
sketch10.addConstraint(Sketcher.Constraint("DistanceX", 0, 2, -1, 1, Q("116.092278 mm")))
sketch10.setExpression("Constraints[8]", "Params.sketch10_width")
sketch10.setExpression("Constraints[9]", "Params.sketch10_height")
pad10 = body.newObject("PartDesign::Pad", "Pad009")
pad10.Profile = sketch10
pad10.setExpression("Length", "Params.pad10_length")

# Sketch on XZ plane
sketch11 = body.newObject("Sketcher::SketchObject", "Sketch010")
sketch11.AttachmentSupport = (doc.getObject("XZ_Plane"), [""])
sketch11.MapMode = "FlatFace"
sketch11.AttachmentOffset = App.Placement(App.Vector(0, 0, -537.056236), App.Rotation())
sketch11.addGeometry(Part.LineSegment(App.Vector(-2880, 1454, 0), App.Vector(-2880, 681, 0)), False)
sketch11.addGeometry(Part.LineSegment(App.Vector(-2880, 681, 0), App.Vector(-2149, 681, 0)), False)
sketch11.addGeometry(Part.LineSegment(App.Vector(-2149, 681, 0), App.Vector(-2149, 1454, 0)), False)
sketch11.addGeometry(Part.LineSegment(App.Vector(-2149, 1454, 0), App.Vector(-2880, 1454, 0)), False)
sketch11.addConstraint(Sketcher.Constraint("Coincident", 0, 2, 1, 1))
sketch11.addConstraint(Sketcher.Constraint("Coincident", 1, 2, 2, 1))
sketch11.addConstraint(Sketcher.Constraint("Coincident", 2, 2, 3, 1))
sketch11.addConstraint(Sketcher.Constraint("Coincident", 3, 2, 0, 1))
sketch11.addConstraint(Sketcher.Constraint("Vertical", 0))
sketch11.addConstraint(Sketcher.Constraint("Horizontal", 1))
sketch11.addConstraint(Sketcher.Constraint("Vertical", 2))
sketch11.addConstraint(Sketcher.Constraint("Horizontal", 3))
sketch11.addConstraint(Sketcher.Constraint("DistanceX", 1, 1, 1, 2, Q("730.483932 mm")))
sketch11.addConstraint(Sketcher.Constraint("DistanceY", 0, 2, 0, 1, Q("773.940105 mm")))
sketch11.addConstraint(Sketcher.Constraint("DistanceY", -1, 1, 0, 2, Q("680.558741 mm")))
sketch11.addConstraint(Sketcher.Constraint("DistanceX", 0, 2, -1, 1, Q("2879.841966 mm")))
pocket1 = body.newObject("PartDesign::Pocket", "Pocket")
pocket1.Profile = sketch11
pocket1.setExpression("Length", "Params.pocket1_length")

# Sketch on an angled plane
sketch12 = body.newObject("Sketcher::SketchObject", "Sketch011")
sketch12.Placement = App.Placement(App.Vector(-414.608362, -414.608362, 0), App.Rotation(App.Vector(0.707106781, -0.707106781, 0), App.Vector(0, 0, 0.999999999), App.Vector(-0.707106781, -0.707106781, 0), "ZXY"))
sketch12.addGeometry(Part.LineSegment(App.Vector(-1698, 1003, 0), App.Vector(-1698, 914, 0)), False)
sketch12.addGeometry(Part.LineSegment(App.Vector(-1698, 914, 0), App.Vector(-1457, 914, 0)), False)
sketch12.addGeometry(Part.LineSegment(App.Vector(-1457, 914, 0), App.Vector(-1457, 1003, 0)), False)
sketch12.addGeometry(Part.LineSegment(App.Vector(-1457, 1003, 0), App.Vector(-1698, 1003, 0)), False)
sketch12.addConstraint(Sketcher.Constraint("Coincident", 0, 2, 1, 1))
sketch12.addConstraint(Sketcher.Constraint("Coincident", 1, 2, 2, 1))
sketch12.addConstraint(Sketcher.Constraint("Coincident", 2, 2, 3, 1))
sketch12.addConstraint(Sketcher.Constraint("Coincident", 3, 2, 0, 1))
sketch12.addConstraint(Sketcher.Constraint("Vertical", 0))
sketch12.addConstraint(Sketcher.Constraint("Horizontal", 1))
sketch12.addConstraint(Sketcher.Constraint("Vertical", 2))
sketch12.addConstraint(Sketcher.Constraint("Horizontal", 3))
sketch12.addConstraint(Sketcher.Constraint("DistanceX", 1, 1, 1, 2, Q("9.5 in")))
sketch12.addConstraint(Sketcher.Constraint("DistanceY", 0, 2, 0, 1, Q("3.5 in")))
sketch12.addConstraint(Sketcher.Constraint("DistanceY", -1, 1, 0, 2, Q("36 in")))
sketch12.addConstraint(Sketcher.Constraint("DistanceX", 0, 2, -1, 1, Q("1698.126061 mm")))
sketch12.setExpression("Constraints[8]", "Params.sketch12_width")
sketch12.setExpression("Constraints[9]", "Params.sketch12_height")
pad11 = body.newObject("PartDesign::Pad", "Pad010")
pad11.Profile = sketch12
pad11.setExpression("Length", "Params.pad11_length")
pad11.Reversed = True

# Sketch on XY plane
sketch13 = body.newObject("Sketcher::SketchObject", "Sketch012")
sketch13.AttachmentSupport = (doc.getObject("XY_Plane"), [""])
sketch13.MapMode = "FlatFace"
sketch13.addGeometry(Part.LineSegment(App.Vector(-3048, -1118, 0), App.Vector(-3048, -1524, 0)), False)
sketch13.addGeometry(Part.LineSegment(App.Vector(-3048, -1524, 0), App.Vector(-1941, -1524, 0)), False)
sketch13.addGeometry(Part.LineSegment(App.Vector(-1941, -1524, 0), App.Vector(-1941, -1118, 0)), False)
sketch13.addGeometry(Part.LineSegment(App.Vector(-1941, -1118, 0), App.Vector(-3048, -1118, 0)), False)
sketch13.addConstraint(Sketcher.Constraint("Coincident", 0, 2, 1, 1))
sketch13.addConstraint(Sketcher.Constraint("Coincident", 1, 2, 2, 1))
sketch13.addConstraint(Sketcher.Constraint("Coincident", 2, 2, 3, 1))
sketch13.addConstraint(Sketcher.Constraint("Coincident", 3, 2, 0, 1))
sketch13.addConstraint(Sketcher.Constraint("Vertical", 0))
sketch13.addConstraint(Sketcher.Constraint("Horizontal", 1))
sketch13.addConstraint(Sketcher.Constraint("Vertical", 2))
sketch13.addConstraint(Sketcher.Constraint("Horizontal", 3))
sketch13.addConstraint(Sketcher.Constraint("DistanceY", 0, 2, 0, 1, Q("16 in")))
sketch13.addConstraint(Sketcher.Constraint("DistanceX", 0, 2, -1, 1, Q("120 in")))
sketch13.addConstraint(Sketcher.Constraint("DistanceY", 0, 2, -1, 1, Q("60 in")))
sketch13.addConstraint(Sketcher.Constraint("DistanceX", 1, 1, 1, 2, Q("1106.804736 mm")))
sketch13.setExpression("Constraints[8]", "Params.sketch13_height")
pad12 = body.newObject("PartDesign::Pad", "Pad011")
pad12.Profile = sketch13
pad12.setExpression("Length", "Params.pad12_length")

doc.recompute()
